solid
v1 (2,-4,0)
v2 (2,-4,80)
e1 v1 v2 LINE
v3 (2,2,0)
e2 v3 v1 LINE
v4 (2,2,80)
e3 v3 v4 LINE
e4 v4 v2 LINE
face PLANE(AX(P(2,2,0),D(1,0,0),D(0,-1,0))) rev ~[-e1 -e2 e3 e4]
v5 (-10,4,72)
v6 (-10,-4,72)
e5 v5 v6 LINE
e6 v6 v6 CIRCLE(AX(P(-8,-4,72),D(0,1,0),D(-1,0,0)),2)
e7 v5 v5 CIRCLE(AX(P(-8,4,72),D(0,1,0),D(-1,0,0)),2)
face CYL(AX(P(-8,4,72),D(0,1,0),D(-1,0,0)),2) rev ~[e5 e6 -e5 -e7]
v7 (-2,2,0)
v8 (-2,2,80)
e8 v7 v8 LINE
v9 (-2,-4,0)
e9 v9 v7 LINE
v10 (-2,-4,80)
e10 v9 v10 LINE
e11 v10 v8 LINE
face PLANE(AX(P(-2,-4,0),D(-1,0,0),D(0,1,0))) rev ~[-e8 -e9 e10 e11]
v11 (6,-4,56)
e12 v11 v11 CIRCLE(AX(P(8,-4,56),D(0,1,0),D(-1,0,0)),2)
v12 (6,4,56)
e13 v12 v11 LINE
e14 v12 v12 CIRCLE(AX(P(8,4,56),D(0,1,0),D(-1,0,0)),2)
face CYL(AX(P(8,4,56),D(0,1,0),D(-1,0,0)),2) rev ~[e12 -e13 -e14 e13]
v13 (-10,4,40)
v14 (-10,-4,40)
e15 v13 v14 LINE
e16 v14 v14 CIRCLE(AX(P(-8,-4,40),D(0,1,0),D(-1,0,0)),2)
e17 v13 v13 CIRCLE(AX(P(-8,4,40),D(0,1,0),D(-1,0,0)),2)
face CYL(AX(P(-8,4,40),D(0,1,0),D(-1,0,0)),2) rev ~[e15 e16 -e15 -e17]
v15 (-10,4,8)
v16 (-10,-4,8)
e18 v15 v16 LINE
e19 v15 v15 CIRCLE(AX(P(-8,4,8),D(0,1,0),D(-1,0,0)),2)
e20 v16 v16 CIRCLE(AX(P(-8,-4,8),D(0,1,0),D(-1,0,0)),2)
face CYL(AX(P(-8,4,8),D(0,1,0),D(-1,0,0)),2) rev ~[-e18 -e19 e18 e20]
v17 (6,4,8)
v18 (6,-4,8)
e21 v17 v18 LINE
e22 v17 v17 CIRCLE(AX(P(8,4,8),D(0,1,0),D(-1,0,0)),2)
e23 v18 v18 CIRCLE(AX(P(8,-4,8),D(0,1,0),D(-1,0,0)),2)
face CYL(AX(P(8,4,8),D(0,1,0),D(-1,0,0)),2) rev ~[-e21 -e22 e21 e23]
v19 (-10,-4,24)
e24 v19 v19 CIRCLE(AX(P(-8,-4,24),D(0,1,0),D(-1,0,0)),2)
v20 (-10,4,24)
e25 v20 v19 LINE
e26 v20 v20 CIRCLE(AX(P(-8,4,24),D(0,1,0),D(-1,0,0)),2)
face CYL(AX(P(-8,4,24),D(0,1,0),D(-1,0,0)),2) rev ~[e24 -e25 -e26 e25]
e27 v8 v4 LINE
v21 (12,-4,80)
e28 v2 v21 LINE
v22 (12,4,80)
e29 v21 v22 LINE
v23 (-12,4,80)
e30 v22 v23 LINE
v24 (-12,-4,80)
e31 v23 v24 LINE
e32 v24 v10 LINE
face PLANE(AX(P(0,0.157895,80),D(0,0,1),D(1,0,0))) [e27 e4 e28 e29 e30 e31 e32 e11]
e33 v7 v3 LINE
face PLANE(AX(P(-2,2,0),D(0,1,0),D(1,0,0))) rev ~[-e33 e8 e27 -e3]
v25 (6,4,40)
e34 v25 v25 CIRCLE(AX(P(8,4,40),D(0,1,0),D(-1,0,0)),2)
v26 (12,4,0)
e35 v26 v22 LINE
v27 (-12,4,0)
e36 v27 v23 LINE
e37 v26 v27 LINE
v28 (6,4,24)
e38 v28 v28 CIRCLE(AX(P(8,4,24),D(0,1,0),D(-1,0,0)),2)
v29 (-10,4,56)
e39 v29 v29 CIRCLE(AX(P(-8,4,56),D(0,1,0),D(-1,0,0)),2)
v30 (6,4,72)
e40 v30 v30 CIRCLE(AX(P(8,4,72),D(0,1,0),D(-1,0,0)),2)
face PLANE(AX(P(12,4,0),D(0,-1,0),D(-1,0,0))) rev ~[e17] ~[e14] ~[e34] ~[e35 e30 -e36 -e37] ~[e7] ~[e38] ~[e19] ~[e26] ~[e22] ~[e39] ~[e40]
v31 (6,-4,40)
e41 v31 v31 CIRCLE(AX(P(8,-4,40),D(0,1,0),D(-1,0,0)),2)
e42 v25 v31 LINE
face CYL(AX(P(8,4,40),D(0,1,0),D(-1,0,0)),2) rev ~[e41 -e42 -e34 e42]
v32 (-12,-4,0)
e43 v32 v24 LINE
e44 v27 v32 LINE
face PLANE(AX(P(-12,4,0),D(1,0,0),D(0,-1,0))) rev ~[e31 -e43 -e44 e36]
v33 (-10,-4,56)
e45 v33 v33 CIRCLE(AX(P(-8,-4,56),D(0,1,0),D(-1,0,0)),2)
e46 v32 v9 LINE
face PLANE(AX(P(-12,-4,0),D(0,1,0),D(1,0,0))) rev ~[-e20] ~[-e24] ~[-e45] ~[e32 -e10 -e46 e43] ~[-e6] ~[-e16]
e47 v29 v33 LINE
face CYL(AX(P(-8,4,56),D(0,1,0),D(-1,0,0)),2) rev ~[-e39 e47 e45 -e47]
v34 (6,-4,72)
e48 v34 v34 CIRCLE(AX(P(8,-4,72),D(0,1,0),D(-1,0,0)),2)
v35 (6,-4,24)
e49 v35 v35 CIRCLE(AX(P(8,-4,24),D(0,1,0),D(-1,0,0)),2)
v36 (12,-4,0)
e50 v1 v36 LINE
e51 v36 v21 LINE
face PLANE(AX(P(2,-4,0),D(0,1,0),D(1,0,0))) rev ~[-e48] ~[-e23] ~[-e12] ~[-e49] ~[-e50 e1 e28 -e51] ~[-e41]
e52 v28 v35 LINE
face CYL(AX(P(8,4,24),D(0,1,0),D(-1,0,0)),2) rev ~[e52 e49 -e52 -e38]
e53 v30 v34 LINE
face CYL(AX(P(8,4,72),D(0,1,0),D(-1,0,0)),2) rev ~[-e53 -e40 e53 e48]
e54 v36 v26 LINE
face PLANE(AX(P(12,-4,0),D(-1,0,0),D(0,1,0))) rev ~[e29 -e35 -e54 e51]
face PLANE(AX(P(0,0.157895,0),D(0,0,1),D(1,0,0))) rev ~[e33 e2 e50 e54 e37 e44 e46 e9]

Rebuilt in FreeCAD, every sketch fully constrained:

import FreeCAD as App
import Part
import Sketcher

doc = App.newDocument("Part")
params = doc.addObject("Spreadsheet::Sheet", "Params")
for row, (alias, value) in enumerate([
    ("sketch1_width", "24 mm"),
    ("sketch1_width2", "10 mm"),
    ("sketch1_height", "8 mm"),
    ("sketch1_height2", "6 mm"),
    ("pad1_length", "80 mm"),
    ("sketch2_diameter", "4 mm"),
    ("pocket1_length", "25 mm"),
], start=1):
    params.set(f"A{row}", alias)
    params.set(f"B{row}", "=" + value)
    params.setAlias(f"B{row}", alias)

body = doc.addObject("PartDesign::Body", "Body")

sketch1 = body.newObject("Sketcher::SketchObject", "Sketch")
sketch1.AttachmentSupport = (doc.getObject("XY_Plane"), [""])
sketch1.MapMode = "FlatFace"
sketch1.addGeometry([
    Part.LineSegment(App.Vector(12, -4, 0), App.Vector(12, 4, 0)),
    Part.LineSegment(App.Vector(12, 4, 0), App.Vector(-12, 4, 0)),
    Part.LineSegment(App.Vector(-12, 4, 0), App.Vector(-12, -4, 0)),
    Part.LineSegment(App.Vector(-12, -4, 0), App.Vector(-2, -4, 0)),
    Part.LineSegment(App.Vector(-2, -4, 0), App.Vector(-2, 2, 0)),
    Part.LineSegment(App.Vector(-2, 2, 0), App.Vector(2, 2, 0)),
    Part.LineSegment(App.Vector(2, 2, 0), App.Vector(2, -4, 0)),
    Part.LineSegment(App.Vector(2, -4, 0), App.Vector(12, -4, 0)),
], False)
sketch1.addConstraint([
    Sketcher.Constraint("Coincident", 0, 2, 1, 1),
    Sketcher.Constraint("Coincident", 1, 2, 2, 1),
    Sketcher.Constraint("Coincident", 2, 2, 3, 1),
    Sketcher.Constraint("Coincident", 3, 2, 4, 1),
    Sketcher.Constraint("Coincident", 4, 2, 5, 1),
    Sketcher.Constraint("Coincident", 5, 2, 6, 1),
    Sketcher.Constraint("Coincident", 6, 2, 7, 1),
    Sketcher.Constraint("Coincident", 7, 2, 0, 1),
    Sketcher.Constraint("Vertical", 0),
    Sketcher.Constraint("Horizontal", 1),
    Sketcher.Constraint("Vertical", 2),
    Sketcher.Constraint("Horizontal", 3),
    Sketcher.Constraint("Vertical", 4),
    Sketcher.Constraint("Horizontal", 5),
    Sketcher.Constraint("Vertical", 6),
    Sketcher.Constraint("Horizontal", 7),
    Sketcher.Constraint("Symmetric", 0, 2, 2, 2, -1, 1),
    Sketcher.Constraint("Symmetric", 3, 2, 6, 2, -2),
    Sketcher.Constraint("DistanceX", 1, 2, 1, 1, 24.0),
    Sketcher.Constraint("DistanceX", 3, 1, 3, 2, 10.0),
    Sketcher.Constraint("DistanceY", 0, 1, 0, 2, 8.0),
    Sketcher.Constraint("DistanceY", 4, 1, 4, 2, 6.0),
])
sketch1.setExpression("Constraints[18]", "Params.sketch1_width")
sketch1.setExpression("Constraints[19]", "Params.sketch1_width2")
sketch1.setExpression("Constraints[20]", "Params.sketch1_height")
sketch1.setExpression("Constraints[21]", "Params.sketch1_height2")
pad1 = body.newObject("PartDesign::Pad", "Pad")
pad1.Profile = sketch1
pad1.setExpression("Length", "Params.pad1_length")

sketch2 = body.newObject("Sketcher::SketchObject", "Sketch001")
sketch2.AttachmentSupport = (doc.getObject("XZ_Plane"), [""])
sketch2.MapMode = "FlatFace"
sketch2.AttachmentOffset = App.Placement(App.Vector(0, 0, -4), App.Rotation())
sketch2.addGeometry([
    Part.Circle(App.Vector(8, 8, 0), App.Vector(0, 0, 1), 2),
    Part.Circle(App.Vector(8, 24, 0), App.Vector(0, 0, 1), 2),
    Part.Circle(App.Vector(8, 40, 0), App.Vector(0, 0, 1), 2),
    Part.Circle(App.Vector(8, 56, 0), App.Vector(0, 0, 1), 2),
    Part.Circle(App.Vector(8, 72, 0), App.Vector(0, 0, 1), 2),
    Part.Circle(App.Vector(-8, 8, 0), App.Vector(0, 0, 1), 2),
    Part.Circle(App.Vector(-8, 24, 0), App.Vector(0, 0, 1), 2),
    Part.Circle(App.Vector(-8, 40, 0), App.Vector(0, 0, 1), 2),
    Part.Circle(App.Vector(-8, 56, 0), App.Vector(0, 0, 1), 2),
    Part.Circle(App.Vector(-8, 72, 0), App.Vector(0, 0, 1), 2),
    Part.Circle(App.Vector(8, 88, 0), App.Vector(0, 0, 1), 2),
    Part.Circle(App.Vector(8, 104, 0), App.Vector(0, 0, 1), 2),
    Part.Circle(App.Vector(8, 120, 0), App.Vector(0, 0, 1), 2),
    Part.Circle(App.Vector(8, 136, 0), App.Vector(0, 0, 1), 2),
    Part.Circle(App.Vector(8, 152, 0), App.Vector(0, 0, 1), 2),
    Part.Circle(App.Vector(-8, 88, 0), App.Vector(0, 0, 1), 2),
    Part.Circle(App.Vector(-8, 104, 0), App.Vector(0, 0, 1), 2),
    Part.Circle(App.Vector(-8, 120, 0), App.Vector(0, 0, 1), 2),
    Part.Circle(App.Vector(-8, 136, 0), App.Vector(0, 0, 1), 2),
    Part.Circle(App.Vector(-8, 152, 0), App.Vector(0, 0, 1), 2),
], False)
sketch2.addConstraint([
    Sketcher.Constraint("Equal", 0, 1),
    Sketcher.Constraint("Equal", 1, 2),
    Sketcher.Constraint("Equal", 2, 3),
    Sketcher.Constraint("Equal", 3, 4),
    Sketcher.Constraint("Equal", 4, 5),
    Sketcher.Constraint("Equal", 5, 6),
    Sketcher.Constraint("Equal", 6, 7),
    Sketcher.Constraint("Equal", 7, 8),
    Sketcher.Constraint("Equal", 8, 9),
    Sketcher.Constraint("Equal", 9, 10),
    Sketcher.Constraint("Equal", 10, 11),
    Sketcher.Constraint("Equal", 11, 12),
    Sketcher.Constraint("Equal", 12, 13),
    Sketcher.Constraint("Equal", 13, 14),
    Sketcher.Constraint("Equal", 14, 15),
    Sketcher.Constraint("Equal", 15, 16),
    Sketcher.Constraint("Equal", 16, 17),
    Sketcher.Constraint("Equal", 17, 18),
    Sketcher.Constraint("Equal", 18, 19),
    Sketcher.Constraint("Symmetric", 0, 3, 5, 3, -2),
    Sketcher.Constraint("Symmetric", 1, 3, 6, 3, -2),
    Sketcher.Constraint("Symmetric", 2, 3, 7, 3, -2),
    Sketcher.Constraint("Symmetric", 3, 3, 8, 3, -2),
    Sketcher.Constraint("Symmetric", 4, 3, 9, 3, -2),
    Sketcher.Constraint("Symmetric", 10, 3, 15, 3, -2),
    Sketcher.Constraint("Symmetric", 11, 3, 16, 3, -2),
    Sketcher.Constraint("Symmetric", 12, 3, 17, 3, -2),
    Sketcher.Constraint("Symmetric", 13, 3, 18, 3, -2),
    Sketcher.Constraint("Symmetric", 14, 3, 19, 3, -2),
    Sketcher.Constraint("Vertical", 0, 3, 1, 3),
    Sketcher.Constraint("Vertical", 1, 3, 2, 3),
    Sketcher.Constraint("Vertical", 2, 3, 3, 3),
    Sketcher.Constraint("Vertical", 3, 3, 4, 3),
    Sketcher.Constraint("Vertical", 4, 3, 10, 3),
    Sketcher.Constraint("Vertical", 10, 3, 11, 3),
    Sketcher.Constraint("Vertical", 11, 3, 12, 3),
    Sketcher.Constraint("Vertical", 12, 3, 13, 3),
    Sketcher.Constraint("Vertical", 13, 3, 14, 3),
    Sketcher.Constraint("Diameter", 0, 4.0),
    Sketcher.Constraint("DistanceX", -1, 1, 0, 3, 8.0),
    Sketcher.Constraint("DistanceY", -1, 1, 0, 3, 8.0),
    Sketcher.Constraint("DistanceY", -1, 1, 1, 3, 24.0),
    Sketcher.Constraint("DistanceY", -1, 1, 2, 3, 40.0),
    Sketcher.Constraint("DistanceY", -1, 1, 3, 3, 56.0),
    Sketcher.Constraint("DistanceY", -1, 1, 4, 3, 72.0),
    Sketcher.Constraint("DistanceY", -1, 1, 10, 3, 88.0),
    Sketcher.Constraint("DistanceY", -1, 1, 11, 3, 104.0),
    Sketcher.Constraint("DistanceY", -1, 1, 12, 3, 120.0),
    Sketcher.Constraint("DistanceY", -1, 1, 13, 3, 136.0),
    Sketcher.Constraint("DistanceY", -1, 1, 14, 3, 152.0),
])
sketch2.setExpression("Constraints[38]", "Params.sketch2_diameter")
pocket1 = body.newObject("PartDesign::Pocket", "Pocket")
pocket1.Profile = sketch2
pocket1.setExpression("Length", "Params.pocket1_length")
pocket1.Reversed = True

doc.recompute()
